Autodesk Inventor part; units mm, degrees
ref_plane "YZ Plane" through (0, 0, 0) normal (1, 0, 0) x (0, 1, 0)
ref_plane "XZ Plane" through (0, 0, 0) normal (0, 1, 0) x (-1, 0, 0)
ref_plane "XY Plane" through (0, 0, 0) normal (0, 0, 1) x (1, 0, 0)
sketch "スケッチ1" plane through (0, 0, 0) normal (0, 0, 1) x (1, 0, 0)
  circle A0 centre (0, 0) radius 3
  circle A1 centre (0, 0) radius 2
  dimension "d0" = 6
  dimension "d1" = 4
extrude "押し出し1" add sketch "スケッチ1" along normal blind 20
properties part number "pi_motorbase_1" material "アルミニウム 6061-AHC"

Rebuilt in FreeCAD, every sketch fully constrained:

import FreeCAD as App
import Part
import Sketcher

V = App.Vector
Q = App.Units.Quantity

doc = App.newDocument("Part")
params = doc.addObject("Spreadsheet::Sheet", "Params")
for row, (alias, value) in enumerate([
    ("sketch1_diameter", "6 mm"),
    ("sketch1_diameter2", "4 mm"),
    ("pad1_length", "20 mm"),
], start=1):
    params.set(f"A{row}", alias)
    params.set(f"B{row}", "=" + value)
    params.setAlias(f"B{row}", alias)

body = doc.addObject("PartDesign::Body", "Body")

sketch1 = body.newObject("Sketcher::SketchObject", "Sketch")
sketch1.AttachmentSupport = (doc.getObject("XY_Plane"), [""])
sketch1.MapMode = "FlatFace"
sketch1.addGeometry(Part.Circle(V(0, 0, 0), V(0, 0, 1), 3), False)
sketch1.addGeometry(Part.Circle(V(0, 0, 0), V(0, 0, 1), 2), False)
sketch1.addConstraint(Sketcher.Constraint("Coincident", 0, 3, -1, 1))
sketch1.addConstraint(Sketcher.Constraint("Coincident", 1, 3, -1, 1))
sketch1.addConstraint(Sketcher.Constraint("Diameter", 0, Q("6 mm")))
sketch1.addConstraint(Sketcher.Constraint("Diameter", 1, Q("4 mm")))
sketch1.setExpression("Constraints[2]", "Params.sketch1_diameter")
sketch1.setExpression("Constraints[3]", "Params.sketch1_diameter2")
pad1 = body.newObject("PartDesign::Pad", "Pad")
pad1.Profile = sketch1
pad1.setExpression("Length", "Params.pad1_length")

doc.recompute()
